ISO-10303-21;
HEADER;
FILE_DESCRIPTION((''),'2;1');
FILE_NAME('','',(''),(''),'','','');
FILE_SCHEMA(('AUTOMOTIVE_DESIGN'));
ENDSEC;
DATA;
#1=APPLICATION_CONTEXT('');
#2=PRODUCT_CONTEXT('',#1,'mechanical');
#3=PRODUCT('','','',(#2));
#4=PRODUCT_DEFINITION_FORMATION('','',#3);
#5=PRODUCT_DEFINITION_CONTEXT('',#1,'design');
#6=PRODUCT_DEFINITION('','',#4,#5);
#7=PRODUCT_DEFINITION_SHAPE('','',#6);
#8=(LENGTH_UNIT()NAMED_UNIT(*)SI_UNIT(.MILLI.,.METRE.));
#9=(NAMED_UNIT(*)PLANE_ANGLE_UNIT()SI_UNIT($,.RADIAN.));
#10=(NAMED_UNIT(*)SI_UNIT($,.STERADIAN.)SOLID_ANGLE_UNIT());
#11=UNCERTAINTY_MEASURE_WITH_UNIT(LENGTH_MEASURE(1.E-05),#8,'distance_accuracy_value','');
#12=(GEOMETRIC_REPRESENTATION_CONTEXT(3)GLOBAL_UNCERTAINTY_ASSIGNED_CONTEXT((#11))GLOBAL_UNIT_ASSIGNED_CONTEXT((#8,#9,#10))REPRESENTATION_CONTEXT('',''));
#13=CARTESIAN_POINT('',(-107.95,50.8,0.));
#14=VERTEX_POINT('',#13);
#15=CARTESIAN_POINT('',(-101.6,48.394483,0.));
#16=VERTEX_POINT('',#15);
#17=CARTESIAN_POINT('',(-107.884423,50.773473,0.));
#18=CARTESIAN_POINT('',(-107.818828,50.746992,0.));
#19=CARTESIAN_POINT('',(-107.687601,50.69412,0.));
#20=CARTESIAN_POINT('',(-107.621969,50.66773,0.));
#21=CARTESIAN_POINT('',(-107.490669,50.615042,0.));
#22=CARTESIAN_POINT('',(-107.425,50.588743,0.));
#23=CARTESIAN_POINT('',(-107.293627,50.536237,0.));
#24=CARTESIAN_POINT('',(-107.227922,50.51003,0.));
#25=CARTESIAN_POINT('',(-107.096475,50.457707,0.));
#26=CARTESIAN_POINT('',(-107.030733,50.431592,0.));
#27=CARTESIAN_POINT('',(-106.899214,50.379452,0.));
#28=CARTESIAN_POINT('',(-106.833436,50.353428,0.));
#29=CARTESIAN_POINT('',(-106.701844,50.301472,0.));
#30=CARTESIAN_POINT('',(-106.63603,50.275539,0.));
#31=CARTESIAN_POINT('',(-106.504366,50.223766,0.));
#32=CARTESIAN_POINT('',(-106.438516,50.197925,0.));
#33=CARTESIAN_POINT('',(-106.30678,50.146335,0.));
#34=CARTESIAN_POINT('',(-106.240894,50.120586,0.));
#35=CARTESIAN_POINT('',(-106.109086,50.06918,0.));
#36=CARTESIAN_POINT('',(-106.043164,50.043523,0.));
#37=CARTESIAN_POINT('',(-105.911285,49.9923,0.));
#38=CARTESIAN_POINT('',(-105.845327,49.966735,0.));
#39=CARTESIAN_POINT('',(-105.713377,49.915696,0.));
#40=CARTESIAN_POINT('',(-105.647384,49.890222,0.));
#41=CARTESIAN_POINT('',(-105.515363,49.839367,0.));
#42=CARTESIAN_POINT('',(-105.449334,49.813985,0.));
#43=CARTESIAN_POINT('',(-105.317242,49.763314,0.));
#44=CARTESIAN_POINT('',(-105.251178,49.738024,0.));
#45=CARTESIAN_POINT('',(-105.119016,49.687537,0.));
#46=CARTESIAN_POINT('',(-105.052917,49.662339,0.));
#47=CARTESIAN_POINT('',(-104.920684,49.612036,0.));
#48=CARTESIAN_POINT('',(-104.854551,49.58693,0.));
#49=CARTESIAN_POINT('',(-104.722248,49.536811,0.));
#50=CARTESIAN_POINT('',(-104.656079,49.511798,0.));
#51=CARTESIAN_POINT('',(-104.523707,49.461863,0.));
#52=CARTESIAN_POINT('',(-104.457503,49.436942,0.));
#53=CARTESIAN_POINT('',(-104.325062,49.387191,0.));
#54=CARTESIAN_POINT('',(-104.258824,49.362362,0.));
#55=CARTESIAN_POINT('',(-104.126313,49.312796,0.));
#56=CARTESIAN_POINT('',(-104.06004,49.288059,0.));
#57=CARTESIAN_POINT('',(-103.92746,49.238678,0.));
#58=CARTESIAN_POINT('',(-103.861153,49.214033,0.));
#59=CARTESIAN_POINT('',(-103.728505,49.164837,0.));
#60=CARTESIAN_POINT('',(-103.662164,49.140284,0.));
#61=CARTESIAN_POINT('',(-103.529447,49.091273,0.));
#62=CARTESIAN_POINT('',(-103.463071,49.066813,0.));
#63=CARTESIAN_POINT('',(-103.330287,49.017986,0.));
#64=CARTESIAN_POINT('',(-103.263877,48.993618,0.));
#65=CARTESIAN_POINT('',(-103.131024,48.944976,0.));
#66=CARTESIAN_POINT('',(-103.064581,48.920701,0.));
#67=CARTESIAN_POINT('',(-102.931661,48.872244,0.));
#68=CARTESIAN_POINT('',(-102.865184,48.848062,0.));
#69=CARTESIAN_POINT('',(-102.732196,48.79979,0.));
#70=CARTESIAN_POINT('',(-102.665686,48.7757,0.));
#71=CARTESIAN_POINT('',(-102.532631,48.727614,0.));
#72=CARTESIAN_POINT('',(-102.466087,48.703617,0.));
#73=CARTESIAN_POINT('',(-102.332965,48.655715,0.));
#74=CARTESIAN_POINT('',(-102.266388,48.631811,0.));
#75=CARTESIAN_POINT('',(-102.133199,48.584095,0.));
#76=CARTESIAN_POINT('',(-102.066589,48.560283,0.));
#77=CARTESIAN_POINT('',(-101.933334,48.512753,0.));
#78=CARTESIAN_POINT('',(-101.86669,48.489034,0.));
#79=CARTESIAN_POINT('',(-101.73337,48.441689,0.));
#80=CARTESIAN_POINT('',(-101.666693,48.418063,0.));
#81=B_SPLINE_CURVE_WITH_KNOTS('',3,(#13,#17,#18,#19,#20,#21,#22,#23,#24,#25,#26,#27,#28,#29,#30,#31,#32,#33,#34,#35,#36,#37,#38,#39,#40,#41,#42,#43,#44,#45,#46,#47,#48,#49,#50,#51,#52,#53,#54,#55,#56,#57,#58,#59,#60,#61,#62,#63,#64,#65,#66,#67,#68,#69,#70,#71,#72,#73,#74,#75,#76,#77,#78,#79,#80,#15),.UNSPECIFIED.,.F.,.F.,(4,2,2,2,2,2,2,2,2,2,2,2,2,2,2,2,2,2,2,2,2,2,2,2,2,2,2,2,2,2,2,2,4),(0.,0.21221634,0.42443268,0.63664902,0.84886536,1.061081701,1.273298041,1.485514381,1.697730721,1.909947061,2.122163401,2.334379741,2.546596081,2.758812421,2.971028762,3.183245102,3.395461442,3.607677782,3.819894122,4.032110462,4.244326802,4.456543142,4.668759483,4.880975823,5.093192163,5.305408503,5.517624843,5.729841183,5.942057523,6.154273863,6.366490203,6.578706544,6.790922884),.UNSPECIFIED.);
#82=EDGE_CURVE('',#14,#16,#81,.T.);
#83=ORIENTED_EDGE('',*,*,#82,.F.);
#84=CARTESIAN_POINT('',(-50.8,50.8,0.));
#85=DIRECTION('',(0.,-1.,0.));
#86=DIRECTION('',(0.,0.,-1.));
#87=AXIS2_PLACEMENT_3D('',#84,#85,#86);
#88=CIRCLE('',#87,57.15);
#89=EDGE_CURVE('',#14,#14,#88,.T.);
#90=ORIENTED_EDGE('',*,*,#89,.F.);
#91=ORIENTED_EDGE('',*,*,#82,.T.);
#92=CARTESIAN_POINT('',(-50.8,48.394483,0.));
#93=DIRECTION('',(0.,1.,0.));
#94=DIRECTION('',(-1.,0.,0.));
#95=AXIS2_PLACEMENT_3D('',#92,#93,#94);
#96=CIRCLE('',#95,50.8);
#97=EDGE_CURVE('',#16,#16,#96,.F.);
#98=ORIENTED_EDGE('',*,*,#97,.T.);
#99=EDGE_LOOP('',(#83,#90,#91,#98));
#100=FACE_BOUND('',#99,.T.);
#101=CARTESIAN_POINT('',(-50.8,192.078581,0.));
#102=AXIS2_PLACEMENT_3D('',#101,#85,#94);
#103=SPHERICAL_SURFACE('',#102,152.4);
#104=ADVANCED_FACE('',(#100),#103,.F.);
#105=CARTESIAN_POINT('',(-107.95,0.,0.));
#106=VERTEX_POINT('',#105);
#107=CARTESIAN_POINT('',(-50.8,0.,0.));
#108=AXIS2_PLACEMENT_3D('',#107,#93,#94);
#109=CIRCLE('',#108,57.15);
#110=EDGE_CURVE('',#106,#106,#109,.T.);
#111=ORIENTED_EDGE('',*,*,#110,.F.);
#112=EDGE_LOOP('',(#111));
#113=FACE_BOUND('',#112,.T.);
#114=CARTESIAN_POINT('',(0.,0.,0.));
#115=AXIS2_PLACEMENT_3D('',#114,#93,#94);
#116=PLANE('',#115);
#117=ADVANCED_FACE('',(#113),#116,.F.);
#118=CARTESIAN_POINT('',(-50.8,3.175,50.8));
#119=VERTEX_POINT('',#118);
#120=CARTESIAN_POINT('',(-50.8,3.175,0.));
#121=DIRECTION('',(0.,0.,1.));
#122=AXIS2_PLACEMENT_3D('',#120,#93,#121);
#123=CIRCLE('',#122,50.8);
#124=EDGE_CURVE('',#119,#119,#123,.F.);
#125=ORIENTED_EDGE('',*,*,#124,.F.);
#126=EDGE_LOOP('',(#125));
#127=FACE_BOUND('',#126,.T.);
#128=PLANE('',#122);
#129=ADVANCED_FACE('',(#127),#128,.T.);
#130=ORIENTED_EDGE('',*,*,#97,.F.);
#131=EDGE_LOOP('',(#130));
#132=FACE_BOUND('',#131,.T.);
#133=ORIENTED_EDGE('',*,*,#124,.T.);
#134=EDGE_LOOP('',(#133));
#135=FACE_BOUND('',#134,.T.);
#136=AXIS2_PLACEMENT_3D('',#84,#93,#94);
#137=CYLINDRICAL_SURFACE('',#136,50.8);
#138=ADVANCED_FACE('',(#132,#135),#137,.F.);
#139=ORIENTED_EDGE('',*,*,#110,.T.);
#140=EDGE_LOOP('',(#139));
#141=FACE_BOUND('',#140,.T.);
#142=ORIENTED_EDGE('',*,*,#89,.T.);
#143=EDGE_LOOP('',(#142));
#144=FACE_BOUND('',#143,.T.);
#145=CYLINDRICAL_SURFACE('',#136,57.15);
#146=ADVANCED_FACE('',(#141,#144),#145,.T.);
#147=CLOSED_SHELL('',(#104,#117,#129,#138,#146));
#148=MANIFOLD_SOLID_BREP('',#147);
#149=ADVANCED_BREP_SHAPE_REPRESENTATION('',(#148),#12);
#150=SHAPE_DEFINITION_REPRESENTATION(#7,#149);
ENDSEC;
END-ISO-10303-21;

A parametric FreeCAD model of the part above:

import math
import FreeCAD as App
import Part
import Sketcher

V = App.Vector
Q = App.Units.Quantity

doc = App.newDocument("Part")
body = doc.addObject("PartDesign::Body", "Body")

# Sketch on XY plane
sketch1 = doc.addObject("Sketcher::SketchObject", "Sketch")
body.addObject(sketch1)
sketch1.AttachmentSupport = (doc.XY_Plane, [""])
sketch1.MapMode = "FlatFace"
sketch1.addGeometry(Part.LineSegment(V(0, 51, 0), V(0, 0, 0)), False)
sketch1.addGeometry(Part.LineSegment(V(0, 0, 0), V(6, 0, 0)), False)
sketch1.addGeometry(Part.LineSegment(V(6, 0, 0), V(6, 51, 0)), False)
sketch1.addGeometry(Part.LineSegment(V(6, 51, 0), V(0, 51, 0)), False)
sketch1.addGeometry(Part.LineSegment(V(-51, 51, 0), V(-51, 0, 0)), True)  # axis
sketch1.addConstraint(Sketcher.Constraint("Coincident", 0, 2, 1, 1))
sketch1.addConstraint(Sketcher.Constraint("Coincident", 1, 2, 2, 1))
sketch1.addConstraint(Sketcher.Constraint("Coincident", 2, 2, 3, 1))
sketch1.addConstraint(Sketcher.Constraint("Coincident", 3, 2, 0, 1))
sketch1.addConstraint(Sketcher.Constraint("Vertical", 0))
sketch1.addConstraint(Sketcher.Constraint("Horizontal", 1))
sketch1.addConstraint(Sketcher.Constraint("Vertical", 2))
sketch1.addConstraint(Sketcher.Constraint("Horizontal", 3))
sketch1.addConstraint(Sketcher.Constraint("Vertical", 4))
sketch1.addConstraint(Sketcher.Constraint("Coincident", 0, 2, -1, 1))
sketch1.addConstraint(Sketcher.Constraint("PointOnObject", 4, 2, -1))
sketch1.addConstraint(Sketcher.Constraint("Horizontal", 3, 2, 4, 1))
sketch1.addConstraint(Sketcher.Constraint("DistanceY", 0, 2, 0, 1, Q("2 in")))
sketch1.addConstraint(Sketcher.Constraint("DistanceX", 4, 1, -1, 1, Q("2 in")))
sketch1.addConstraint(Sketcher.Constraint("DistanceX", 1, 1, 1, 2, Q("0.25 in")))
revolution = doc.addObject("PartDesign::Revolution", "Revolution")
body.addObject(revolution)
revolution.Profile = sketch1
revolution.ReferenceAxis = (sketch1, ["Axis0"])
revolution.Angle = 360

# Sketch on XZ plane
sketch2 = doc.addObject("Sketcher::SketchObject", "Sketch001")
body.addObject(sketch2)
sketch2.AttachmentSupport = (doc.XZ_Plane, [""])
sketch2.MapMode = "FlatFace"
sketch2.AttachmentOffset = App.Placement(V(0, 0, -0.125 * 25.4), App.Rotation())
sketch2.addGeometry(Part.Circle(V(-51, 0, 0), V(0, 0, 1), 57), False)
sketch2.addConstraint(Sketcher.Constraint("PointOnObject", 0, 3, -1))
sketch2.addConstraint(Sketcher.Constraint("Diameter", 0, Q("4.5 in")))
sketch2.addConstraint(Sketcher.Constraint("DistanceX", 0, 3, -1, 1, Q("2 in")))
pad1 = doc.addObject("PartDesign::Pad", "Pad")
body.addObject(pad1)
pad1.Profile = sketch2
pad1.Length = Q("0.125 in")

# Sketch on XY plane
sketch3 = doc.addObject("Sketcher::SketchObject", "Sketch002")
body.addObject(sketch3)
sketch3.AttachmentSupport = (doc.XY_Plane, [""])
sketch3.MapMode = "FlatFace"
sketch3.addGeometry(Part.LineSegment(V(-51, 51, 0), V(-108, 51, 0)), False)
sketch3.addGeometry(Part.ArcOfCircle(Part.Circle(V(-51, 192, 0), V(0, 0, 1), 152), math.radians(-112), math.radians(-90)), False)
sketch3.addGeometry(Part.LineSegment(V(-51, 40, 0), V(-51, 51, 0)), False)
sketch3.addGeometry(Part.LineSegment(V(-51, 40, 0), V(-51, 192, 0)), True)  # axis
sketch3.addConstraint(Sketcher.Constraint("Coincident", 0, 2, 1, 1))
sketch3.addConstraint(Sketcher.Constraint("Coincident", 1, 2, 2, 1))
sketch3.addConstraint(Sketcher.Constraint("Coincident", 2, 2, 0, 1))
sketch3.addConstraint(Sketcher.Constraint("Horizontal", 0))
sketch3.addConstraint(Sketcher.Constraint("Vertical", 2))
sketch3.addConstraint(Sketcher.Constraint("Vertical", 3))
sketch3.addConstraint(Sketcher.Constraint("Coincident", 3, 1, 1, 2))
sketch3.addConstraint(Sketcher.Constraint("Coincident", 3, 2, 1, 3))
sketch3.addConstraint(Sketcher.Constraint("Radius", 1, Q("6 in")))
sketch3.addConstraint(Sketcher.Constraint("DistanceX", 1, 3, -1, 1, Q("2 in")))
sketch3.addConstraint(Sketcher.Constraint("DistanceY", -1, 1, 0, 2, Q("2 in")))
sketch3.addConstraint(Sketcher.Constraint("DistanceX", 0, 2, 0, 1, Q("2.25 in")))
groove = doc.addObject("PartDesign::Groove", "Groove")
body.addObject(groove)
groove.Profile = sketch3
groove.ReferenceAxis = (sketch3, ["Axis0"])
groove.Angle = 360

doc.recompute()
